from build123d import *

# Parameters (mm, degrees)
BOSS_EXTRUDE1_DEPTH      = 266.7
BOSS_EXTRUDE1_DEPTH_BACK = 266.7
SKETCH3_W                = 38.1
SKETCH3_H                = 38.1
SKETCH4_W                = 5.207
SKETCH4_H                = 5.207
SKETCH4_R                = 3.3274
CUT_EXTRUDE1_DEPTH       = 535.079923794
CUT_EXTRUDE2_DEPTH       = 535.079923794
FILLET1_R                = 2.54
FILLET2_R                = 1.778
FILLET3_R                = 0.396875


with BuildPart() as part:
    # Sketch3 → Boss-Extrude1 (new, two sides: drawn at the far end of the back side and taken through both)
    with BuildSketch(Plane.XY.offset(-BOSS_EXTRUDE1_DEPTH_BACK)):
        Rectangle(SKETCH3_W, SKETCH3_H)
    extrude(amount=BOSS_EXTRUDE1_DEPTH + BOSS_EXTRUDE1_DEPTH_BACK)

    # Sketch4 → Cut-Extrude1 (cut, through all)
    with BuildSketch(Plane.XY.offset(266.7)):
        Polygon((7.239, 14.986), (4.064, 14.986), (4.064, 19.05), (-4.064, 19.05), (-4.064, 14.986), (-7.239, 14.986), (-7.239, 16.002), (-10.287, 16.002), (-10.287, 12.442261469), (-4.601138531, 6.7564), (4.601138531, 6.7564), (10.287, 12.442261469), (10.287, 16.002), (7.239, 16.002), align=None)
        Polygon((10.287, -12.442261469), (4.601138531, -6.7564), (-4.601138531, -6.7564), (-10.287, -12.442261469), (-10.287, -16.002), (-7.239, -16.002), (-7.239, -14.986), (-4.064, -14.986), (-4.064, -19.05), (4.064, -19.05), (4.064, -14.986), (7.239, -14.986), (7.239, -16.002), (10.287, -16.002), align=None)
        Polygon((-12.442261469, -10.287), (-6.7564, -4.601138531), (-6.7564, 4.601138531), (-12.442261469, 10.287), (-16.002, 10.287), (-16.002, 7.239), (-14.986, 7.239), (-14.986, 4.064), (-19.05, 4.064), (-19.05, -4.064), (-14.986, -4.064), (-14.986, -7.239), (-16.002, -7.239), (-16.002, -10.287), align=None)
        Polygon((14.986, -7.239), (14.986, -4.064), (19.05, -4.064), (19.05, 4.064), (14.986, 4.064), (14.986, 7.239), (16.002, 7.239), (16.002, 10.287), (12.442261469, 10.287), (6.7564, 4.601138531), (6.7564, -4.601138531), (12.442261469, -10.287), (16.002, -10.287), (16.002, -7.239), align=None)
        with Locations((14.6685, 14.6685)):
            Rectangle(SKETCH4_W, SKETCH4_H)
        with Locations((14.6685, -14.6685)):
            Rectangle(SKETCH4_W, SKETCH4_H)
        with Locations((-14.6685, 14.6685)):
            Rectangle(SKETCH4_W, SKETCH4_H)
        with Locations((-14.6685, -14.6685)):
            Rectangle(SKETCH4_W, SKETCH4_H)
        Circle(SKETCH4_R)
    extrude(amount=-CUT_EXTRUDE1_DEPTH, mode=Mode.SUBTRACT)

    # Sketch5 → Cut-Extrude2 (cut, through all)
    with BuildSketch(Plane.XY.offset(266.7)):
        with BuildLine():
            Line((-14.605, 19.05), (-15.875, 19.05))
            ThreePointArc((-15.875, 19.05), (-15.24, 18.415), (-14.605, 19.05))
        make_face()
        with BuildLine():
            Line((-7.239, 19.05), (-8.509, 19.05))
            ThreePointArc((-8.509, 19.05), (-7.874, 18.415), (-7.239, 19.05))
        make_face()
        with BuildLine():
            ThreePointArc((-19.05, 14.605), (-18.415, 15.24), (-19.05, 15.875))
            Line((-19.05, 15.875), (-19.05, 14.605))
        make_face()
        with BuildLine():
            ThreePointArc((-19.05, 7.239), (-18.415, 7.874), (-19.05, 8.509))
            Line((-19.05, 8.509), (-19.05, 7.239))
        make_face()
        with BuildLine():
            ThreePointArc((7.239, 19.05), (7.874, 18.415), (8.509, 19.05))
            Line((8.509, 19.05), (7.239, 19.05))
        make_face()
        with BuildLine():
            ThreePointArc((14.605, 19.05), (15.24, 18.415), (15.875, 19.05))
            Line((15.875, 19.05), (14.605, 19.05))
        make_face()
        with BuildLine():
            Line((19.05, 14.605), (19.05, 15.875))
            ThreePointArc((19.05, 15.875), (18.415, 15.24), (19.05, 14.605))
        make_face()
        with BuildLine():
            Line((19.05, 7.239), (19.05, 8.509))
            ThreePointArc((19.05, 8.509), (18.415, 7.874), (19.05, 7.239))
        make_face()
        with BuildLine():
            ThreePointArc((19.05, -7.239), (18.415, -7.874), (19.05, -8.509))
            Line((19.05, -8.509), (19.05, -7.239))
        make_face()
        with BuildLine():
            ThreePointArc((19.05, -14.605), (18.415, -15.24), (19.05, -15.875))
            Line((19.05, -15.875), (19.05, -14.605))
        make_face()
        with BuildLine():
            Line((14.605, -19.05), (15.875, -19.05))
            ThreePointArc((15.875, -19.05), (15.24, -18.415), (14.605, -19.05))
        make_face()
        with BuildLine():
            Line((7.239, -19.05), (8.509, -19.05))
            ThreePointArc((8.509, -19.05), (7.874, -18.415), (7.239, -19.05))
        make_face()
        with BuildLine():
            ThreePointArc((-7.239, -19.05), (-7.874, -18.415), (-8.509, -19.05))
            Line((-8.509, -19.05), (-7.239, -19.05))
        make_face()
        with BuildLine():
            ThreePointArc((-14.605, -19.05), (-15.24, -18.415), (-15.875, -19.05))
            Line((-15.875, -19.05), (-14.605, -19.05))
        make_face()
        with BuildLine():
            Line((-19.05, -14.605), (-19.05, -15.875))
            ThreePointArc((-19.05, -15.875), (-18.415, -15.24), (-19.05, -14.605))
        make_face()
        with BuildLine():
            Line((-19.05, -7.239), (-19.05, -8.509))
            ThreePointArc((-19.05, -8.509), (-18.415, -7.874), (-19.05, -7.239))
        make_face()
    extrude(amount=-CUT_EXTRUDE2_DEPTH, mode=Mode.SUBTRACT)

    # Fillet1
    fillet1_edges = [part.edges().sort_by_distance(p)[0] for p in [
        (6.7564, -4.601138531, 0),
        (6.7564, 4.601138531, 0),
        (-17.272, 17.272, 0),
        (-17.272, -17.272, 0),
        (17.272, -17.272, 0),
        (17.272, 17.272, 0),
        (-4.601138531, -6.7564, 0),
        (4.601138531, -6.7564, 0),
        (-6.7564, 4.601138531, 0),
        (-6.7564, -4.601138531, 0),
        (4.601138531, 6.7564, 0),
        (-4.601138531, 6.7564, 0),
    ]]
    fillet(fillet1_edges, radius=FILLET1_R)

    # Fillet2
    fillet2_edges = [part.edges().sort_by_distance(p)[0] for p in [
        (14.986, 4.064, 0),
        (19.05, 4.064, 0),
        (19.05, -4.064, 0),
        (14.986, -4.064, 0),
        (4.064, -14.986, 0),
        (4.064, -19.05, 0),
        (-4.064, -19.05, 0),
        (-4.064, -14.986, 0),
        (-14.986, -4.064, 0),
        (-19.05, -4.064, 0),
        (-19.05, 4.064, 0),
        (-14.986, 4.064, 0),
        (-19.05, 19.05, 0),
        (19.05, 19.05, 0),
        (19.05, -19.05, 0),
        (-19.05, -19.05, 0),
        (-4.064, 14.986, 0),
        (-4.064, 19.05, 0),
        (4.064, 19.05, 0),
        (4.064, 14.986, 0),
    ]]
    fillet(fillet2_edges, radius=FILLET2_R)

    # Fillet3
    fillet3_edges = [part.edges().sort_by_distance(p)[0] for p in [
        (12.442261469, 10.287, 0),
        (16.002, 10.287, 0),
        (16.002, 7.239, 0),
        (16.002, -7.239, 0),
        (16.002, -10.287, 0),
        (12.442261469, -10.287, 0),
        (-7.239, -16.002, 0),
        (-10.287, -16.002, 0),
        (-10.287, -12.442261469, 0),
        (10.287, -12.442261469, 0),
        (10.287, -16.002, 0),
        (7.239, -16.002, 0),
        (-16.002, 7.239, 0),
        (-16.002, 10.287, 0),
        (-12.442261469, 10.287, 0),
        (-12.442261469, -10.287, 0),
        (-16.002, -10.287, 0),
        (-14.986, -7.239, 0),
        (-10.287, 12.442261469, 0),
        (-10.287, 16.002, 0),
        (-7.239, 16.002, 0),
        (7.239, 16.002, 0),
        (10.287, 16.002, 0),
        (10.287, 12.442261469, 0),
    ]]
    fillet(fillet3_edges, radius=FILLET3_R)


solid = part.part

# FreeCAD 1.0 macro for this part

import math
import FreeCAD as App
import Part
import Sketcher
Q = App.Units.Quantity


def edges_at(feature, points):
    """Names of the edges that pass closest to the given points."""
    edges = feature.Shape.Edges
    near = lambda p: min(range(len(edges)), key=lambda i: edges[i].distToShape(Part.Vertex(*p))[0])
    return sorted({f"Edge{near(p) + 1}" for p in points})

doc = App.newDocument("Part")
body = doc.addObject("PartDesign::Body", "Body")

# Sketch on XY plane
sketch1 = doc.addObject("Sketcher::SketchObject", "Sketch")
body.addObject(sketch1)
sketch1.AttachmentSupport = (doc.XY_Plane, [""])
sketch1.MapMode = "FlatFace"
sketch1.addGeometry(Part.LineSegment(App.Vector(-19, 19, 0), App.Vector(-19, -19, 0)), False)
sketch1.addGeometry(Part.LineSegment(App.Vector(-19, -19, 0), App.Vector(19, -19, 0)), False)
sketch1.addGeometry(Part.LineSegment(App.Vector(19, -19, 0), App.Vector(19, 19, 0)), False)
sketch1.addGeometry(Part.LineSegment(App.Vector(19, 19, 0), App.Vector(-19, 19, 0)), False)
sketch1.addConstraint(Sketcher.Constraint("Coincident", 0, 2, 1, 1))
sketch1.addConstraint(Sketcher.Constraint("Coincident", 1, 2, 2, 1))
sketch1.addConstraint(Sketcher.Constraint("Coincident", 2, 2, 3, 1))
sketch1.addConstraint(Sketcher.Constraint("Coincident", 3, 2, 0, 1))
sketch1.addConstraint(Sketcher.Constraint("Vertical", 0))
sketch1.addConstraint(Sketcher.Constraint("Horizontal", 1))
sketch1.addConstraint(Sketcher.Constraint("Vertical", 2))
sketch1.addConstraint(Sketcher.Constraint("Horizontal", 3))
sketch1.addConstraint(Sketcher.Constraint("Symmetric", 0, 2, 2, 2, -1, 1))
sketch1.addConstraint(Sketcher.Constraint("Equal", 3, 0))
sketch1.addConstraint(Sketcher.Constraint("DistanceX", 1, 1, 1, 2, Q("1.5 in")))
pad1 = doc.addObject("PartDesign::Pad", "Pad")
body.addObject(pad1)
pad1.Profile = sketch1
pad1.Type = "TwoLengths"
pad1.Length = Q("10.5 in")
pad1.Length2 = Q("10.5 in")

# Sketch on XY plane
sketch2 = doc.addObject("Sketcher::SketchObject", "Sketch001")
body.addObject(sketch2)
sketch2.AttachmentSupport = (doc.XY_Plane, [""])
sketch2.MapMode = "FlatFace"
sketch2.AttachmentOffset = App.Placement(App.Vector(0, 0, 10.5 * 25.4), App.Rotation())
sketch2.addGeometry(Part.LineSegment(App.Vector(7.2, 15, 0), App.Vector(4.1, 15, 0)), False)
sketch2.addGeometry(Part.LineSegment(App.Vector(4.1, 15, 0), App.Vector(4.1, 19.1, 0)), False)
sketch2.addGeometry(Part.LineSegment(App.Vector(4.1, 19.1, 0), App.Vector(-4.1, 19.1, 0)), False)
sketch2.addGeometry(Part.LineSegment(App.Vector(-4.1, 19.1, 0), App.Vector(-4.1, 15, 0)), False)
sketch2.addGeometry(Part.LineSegment(App.Vector(-4.1, 15, 0), App.Vector(-7.2, 15, 0)), False)
sketch2.addGeometry(Part.LineSegment(App.Vector(-7.2, 15, 0), App.Vector(-7.2, 16, 0)), False)
sketch2.addGeometry(Part.LineSegment(App.Vector(-7.2, 16, 0), App.Vector(-10.3, 16, 0)), False)
sketch2.addGeometry(Part.LineSegment(App.Vector(-10.3, 16, 0), App.Vector(-10.3, 12.4, 0)), False)
sketch2.addGeometry(Part.LineSegment(App.Vector(-10.3, 12.4, 0), App.Vector(-4.6, 6.8, 0)), False)
sketch2.addGeometry(Part.LineSegment(App.Vector(-4.6, 6.8, 0), App.Vector(4.6, 6.8, 0)), False)
sketch2.addGeometry(Part.LineSegment(App.Vector(4.6, 6.8, 0), App.Vector(10.3, 12.4, 0)), False)
sketch2.addGeometry(Part.LineSegment(App.Vector(10.3, 12.4, 0), App.Vector(10.3, 16, 0)), False)
sketch2.addGeometry(Part.LineSegment(App.Vector(10.3, 16, 0), App.Vector(7.2, 16, 0)), False)
sketch2.addGeometry(Part.LineSegment(App.Vector(7.2, 16, 0), App.Vector(7.2, 15, 0)), False)
sketch2.addGeometry(Part.LineSegment(App.Vector(10.3, -12.4, 0), App.Vector(4.6, -6.8, 0)), False)
sketch2.addGeometry(Part.LineSegment(App.Vector(4.6, -6.8, 0), App.Vector(-4.6, -6.8, 0)), False)
sketch2.addGeometry(Part.LineSegment(App.Vector(-4.6, -6.8, 0), App.Vector(-10.3, -12.4, 0)), False)
sketch2.addGeometry(Part.LineSegment(App.Vector(-10.3, -12.4, 0), App.Vector(-10.3, -16, 0)), False)
sketch2.addGeometry(Part.LineSegment(App.Vector(-10.3, -16, 0), App.Vector(-7.2, -16, 0)), False)
sketch2.addGeometry(Part.LineSegment(App.Vector(-7.2, -16, 0), App.Vector(-7.2, -15, 0)), False)
sketch2.addGeometry(Part.LineSegment(App.Vector(-7.2, -15, 0), App.Vector(-4.1, -15, 0)), False)
sketch2.addGeometry(Part.LineSegment(App.Vector(-4.1, -15, 0), App.Vector(-4.1, -19.1, 0)), False)
sketch2.addGeometry(Part.LineSegment(App.Vector(-4.1, -19.1, 0), App.Vector(4.1, -19.1, 0)), False)
sketch2.addGeometry(Part.LineSegment(App.Vector(4.1, -19.1, 0), App.Vector(4.1, -15, 0)), False)
sketch2.addGeometry(Part.LineSegment(App.Vector(4.1, -15, 0), App.Vector(7.2, -15, 0)), False)
sketch2.addGeometry(Part.LineSegment(App.Vector(7.2, -15, 0), App.Vector(7.2, -16, 0)), False)
sketch2.addGeometry(Part.LineSegment(App.Vector(7.2, -16, 0), App.Vector(10.3, -16, 0)), False)
sketch2.addGeometry(Part.LineSegment(App.Vector(10.3, -16, 0), App.Vector(10.3, -12.4, 0)), False)
sketch2.addGeometry(Part.LineSegment(App.Vector(-12.4, -10.3, 0), App.Vector(-6.8, -4.6, 0)), False)
sketch2.addGeometry(Part.LineSegment(App.Vector(-6.8, -4.6, 0), App.Vector(-6.8, 4.6, 0)), False)
sketch2.addGeometry(Part.LineSegment(App.Vector(-6.8, 4.6, 0), App.Vector(-12.4, 10.3, 0)), False)
sketch2.addGeometry(Part.LineSegment(App.Vector(-12.4, 10.3, 0), App.Vector(-16, 10.3, 0)), False)
sketch2.addGeometry(Part.LineSegment(App.Vector(-16, 10.3, 0), App.Vector(-16, 7.2, 0)), False)
sketch2.addGeometry(Part.LineSegment(App.Vector(-16, 7.2, 0), App.Vector(-15, 7.2, 0)), False)
sketch2.addGeometry(Part.LineSegment(App.Vector(-15, 7.2, 0), App.Vector(-15, 4.1, 0)), False)
sketch2.addGeometry(Part.LineSegment(App.Vector(-15, 4.1, 0), App.Vector(-19.1, 4.1, 0)), False)
sketch2.addGeometry(Part.LineSegment(App.Vector(-19.1, 4.1, 0), App.Vector(-19.1, -4.1, 0)), False)
sketch2.addGeometry(Part.LineSegment(App.Vector(-19.1, -4.1, 0), App.Vector(-15, -4.1, 0)), False)
sketch2.addGeometry(Part.LineSegment(App.Vector(-15, -4.1, 0), App.Vector(-15, -7.2, 0)), False)
sketch2.addGeometry(Part.LineSegment(App.Vector(-15, -7.2, 0), App.Vector(-16, -7.2, 0)), False)
sketch2.addGeometry(Part.LineSegment(App.Vector(-16, -7.2, 0), App.Vector(-16, -10.3, 0)), False)
sketch2.addGeometry(Part.LineSegment(App.Vector(-16, -10.3, 0), App.Vector(-12.4, -10.3, 0)), False)
sketch2.addGeometry(Part.LineSegment(App.Vector(15, -7.2, 0), App.Vector(15, -4.1, 0)), False)
sketch2.addGeometry(Part.LineSegment(App.Vector(15, -4.1, 0), App.Vector(19.1, -4.1, 0)), False)
sketch2.addGeometry(Part.LineSegment(App.Vector(19.1, -4.1, 0), App.Vector(19.1, 4.1, 0)), False)
sketch2.addGeometry(Part.LineSegment(App.Vector(19.1, 4.1, 0), App.Vector(15, 4.1, 0)), False)
sketch2.addGeometry(Part.LineSegment(App.Vector(15, 4.1, 0), App.Vector(15, 7.2, 0)), False)
sketch2.addGeometry(Part.LineSegment(App.Vector(15, 7.2, 0), App.Vector(16, 7.2, 0)), False)
sketch2.addGeometry(Part.LineSegment(App.Vector(16, 7.2, 0), App.Vector(16, 10.3, 0)), False)
sketch2.addGeometry(Part.LineSegment(App.Vector(16, 10.3, 0), App.Vector(12.4, 10.3, 0)), False)
sketch2.addGeometry(Part.LineSegment(App.Vector(12.4, 10.3, 0), App.Vector(6.8, 4.6, 0)), False)
sketch2.addGeometry(Part.LineSegment(App.Vector(6.8, 4.6, 0), App.Vector(6.8, -4.6, 0)), False)
sketch2.addGeometry(Part.LineSegment(App.Vector(6.8, -4.6, 0), App.Vector(12.4, -10.3, 0)), False)
sketch2.addGeometry(Part.LineSegment(App.Vector(12.4, -10.3, 0), App.Vector(16, -10.3, 0)), False)
sketch2.addGeometry(Part.LineSegment(App.Vector(16, -10.3, 0), App.Vector(16, -7.2, 0)), False)
sketch2.addGeometry(Part.LineSegment(App.Vector(16, -7.2, 0), App.Vector(15, -7.2, 0)), False)
sketch2.addGeometry(Part.LineSegment(App.Vector(12.1, 17.3, 0), App.Vector(12.1, 12.1, 0)), False)
sketch2.addGeometry(Part.LineSegment(App.Vector(12.1, 12.1, 0), App.Vector(17.3, 12.1, 0)), False)
sketch2.addGeometry(Part.LineSegment(App.Vector(17.3, 12.1, 0), App.Vector(17.3, 17.3, 0)), False)
sketch2.addGeometry(Part.LineSegment(App.Vector(17.3, 17.3, 0), App.Vector(12.1, 17.3, 0)), False)
sketch2.addGeometry(Part.LineSegment(App.Vector(12.1, -12.1, 0), App.Vector(12.1, -17.3, 0)), False)
sketch2.addGeometry(Part.LineSegment(App.Vector(12.1, -17.3, 0), App.Vector(17.3, -17.3, 0)), False)
sketch2.addGeometry(Part.LineSegment(App.Vector(17.3, -17.3, 0), App.Vector(17.3, -12.1, 0)), False)
sketch2.addGeometry(Part.LineSegment(App.Vector(17.3, -12.1, 0), App.Vector(12.1, -12.1, 0)), False)
sketch2.addGeometry(Part.LineSegment(App.Vector(-17.3, 17.3, 0), App.Vector(-17.3, 12.1, 0)), False)
sketch2.addGeometry(Part.LineSegment(App.Vector(-17.3, 12.1, 0), App.Vector(-12.1, 12.1, 0)), False)
sketch2.addGeometry(Part.LineSegment(App.Vector(-12.1, 12.1, 0), App.Vector(-12.1, 17.3, 0)), False)
sketch2.addGeometry(Part.LineSegment(App.Vector(-12.1, 17.3, 0), App.Vector(-17.3, 17.3, 0)), False)
sketch2.addGeometry(Part.LineSegment(App.Vector(-17.3, -12.1, 0), App.Vector(-17.3, -17.3, 0)), False)
sketch2.addGeometry(Part.LineSegment(App.Vector(-17.3, -17.3, 0), App.Vector(-12.1, -17.3, 0)), False)
sketch2.addGeometry(Part.LineSegment(App.Vector(-12.1, -17.3, 0), App.Vector(-12.1, -12.1, 0)), False)
sketch2.addGeometry(Part.LineSegment(App.Vector(-12.1, -12.1, 0), App.Vector(-17.3, -12.1, 0)), False)
sketch2.addGeometry(Part.Circle(App.Vector(0, 0, 0), App.Vector(0, 0, 1), 3.3), False)
sketch2.addConstraint(Sketcher.Constraint("Coincident", 0, 2, 1, 1))
sketch2.addConstraint(Sketcher.Constraint("Coincident", 1, 2, 2, 1))
sketch2.addConstraint(Sketcher.Constraint("Coincident", 2, 2, 3, 1))
sketch2.addConstraint(Sketcher.Constraint("Coincident", 3, 2, 4, 1))
sketch2.addConstraint(Sketcher.Constraint("Coincident", 4, 2, 5, 1))
sketch2.addConstraint(Sketcher.Constraint("Coincident", 5, 2, 6, 1))
sketch2.addConstraint(Sketcher.Constraint("Coincident", 6, 2, 7, 1))
sketch2.addConstraint(Sketcher.Constraint("Coincident", 7, 2, 8, 1))
sketch2.addConstraint(Sketcher.Constraint("Coincident", 8, 2, 9, 1))
sketch2.addConstraint(Sketcher.Constraint("Coincident", 9, 2, 10, 1))
sketch2.addConstraint(Sketcher.Constraint("Coincident", 10, 2, 11, 1))
sketch2.addConstraint(Sketcher.Constraint("Coincident", 11, 2, 12, 1))
sketch2.addConstraint(Sketcher.Constraint("Coincident", 12, 2, 13, 1))
sketch2.addConstraint(Sketcher.Constraint("Coincident", 13, 2, 0, 1))
sketch2.addConstraint(Sketcher.Constraint("Coincident", 14, 2, 15, 1))
sketch2.addConstraint(Sketcher.Constraint("Coincident", 15, 2, 16, 1))
sketch2.addConstraint(Sketcher.Constraint("Coincident", 16, 2, 17, 1))
sketch2.addConstraint(Sketcher.Constraint("Coincident", 17, 2, 18, 1))
sketch2.addConstraint(Sketcher.Constraint("Coincident", 18, 2, 19, 1))
sketch2.addConstraint(Sketcher.Constraint("Coincident", 19, 2, 20, 1))
sketch2.addConstraint(Sketcher.Constraint("Coincident", 20, 2, 21, 1))
sketch2.addConstraint(Sketcher.Constraint("Coincident", 21, 2, 22, 1))
sketch2.addConstraint(Sketcher.Constraint("Coincident", 22, 2, 23, 1))
sketch2.addConstraint(Sketcher.Constraint("Coincident", 23, 2, 24, 1))
sketch2.addConstraint(Sketcher.Constraint("Coincident", 24, 2, 25, 1))
sketch2.addConstraint(Sketcher.Constraint("Coincident", 25, 2, 26, 1))
sketch2.addConstraint(Sketcher.Constraint("Coincident", 26, 2, 27, 1))
sketch2.addConstraint(Sketcher.Constraint("Coincident", 27, 2, 14, 1))
sketch2.addConstraint(Sketcher.Constraint("Coincident", 28, 2, 29, 1))
sketch2.addConstraint(Sketcher.Constraint("Coincident", 29, 2, 30, 1))
sketch2.addConstraint(Sketcher.Constraint("Coincident", 30, 2, 31, 1))
sketch2.addConstraint(Sketcher.Constraint("Coincident", 31, 2, 32, 1))
sketch2.addConstraint(Sketcher.Constraint("Coincident", 32, 2, 33, 1))
sketch2.addConstraint(Sketcher.Constraint("Coincident", 33, 2, 34, 1))
sketch2.addConstraint(Sketcher.Constraint("Coincident", 34, 2, 35, 1))
sketch2.addConstraint(Sketcher.Constraint("Coincident", 35, 2, 36, 1))
sketch2.addConstraint(Sketcher.Constraint("Coincident", 36, 2, 37, 1))
sketch2.addConstraint(Sketcher.Constraint("Coincident", 37, 2, 38, 1))
sketch2.addConstraint(Sketcher.Constraint("Coincident", 38, 2, 39, 1))
sketch2.addConstraint(Sketcher.Constraint("Coincident", 39, 2, 40, 1))
sketch2.addConstraint(Sketcher.Constraint("Coincident", 40, 2, 41, 1))
sketch2.addConstraint(Sketcher.Constraint("Coincident", 41, 2, 28, 1))
sketch2.addConstraint(Sketcher.Constraint("Coincident", 42, 2, 43, 1))
sketch2.addConstraint(Sketcher.Constraint("Coincident", 43, 2, 44, 1))
sketch2.addConstraint(Sketcher.Constraint("Coincident", 44, 2, 45, 1))
sketch2.addConstraint(Sketcher.Constraint("Coincident", 45, 2, 46, 1))
sketch2.addConstraint(Sketcher.Constraint("Coincident", 46, 2, 47, 1))
sketch2.addConstraint(Sketcher.Constraint("Coincident", 47, 2, 48, 1))
sketch2.addConstraint(Sketcher.Constraint("Coincident", 48, 2, 49, 1))
sketch2.addConstraint(Sketcher.Constraint("Coincident", 49, 2, 50, 1))
sketch2.addConstraint(Sketcher.Constraint("Coincident", 50, 2, 51, 1))
sketch2.addConstraint(Sketcher.Constraint("Coincident", 51, 2, 52, 1))
sketch2.addConstraint(Sketcher.Constraint("Coincident", 52, 2, 53, 1))
sketch2.addConstraint(Sketcher.Constraint("Coincident", 53, 2, 54, 1))
sketch2.addConstraint(Sketcher.Constraint("Coincident", 54, 2, 55, 1))
sketch2.addConstraint(Sketcher.Constraint("Coincident", 55, 2, 42, 1))
sketch2.addConstraint(Sketcher.Constraint("Coincident", 56, 2, 57, 1))
sketch2.addConstraint(Sketcher.Constraint("Coincident", 57, 2, 58, 1))
sketch2.addConstraint(Sketcher.Constraint("Coincident", 58, 2, 59, 1))
sketch2.addConstraint(Sketcher.Constraint("Coincident", 59, 2, 56, 1))
sketch2.addConstraint(Sketcher.Constraint("Coincident", 60, 2, 61, 1))
sketch2.addConstraint(Sketcher.Constraint("Coincident", 61, 2, 62, 1))
sketch2.addConstraint(Sketcher.Constraint("Coincident", 62, 2, 63, 1))
sketch2.addConstraint(Sketcher.Constraint("Coincident", 63, 2, 60, 1))
sketch2.addConstraint(Sketcher.Constraint("Coincident", 64, 2, 65, 1))
sketch2.addConstraint(Sketcher.Constraint("Coincident", 65, 2, 66, 1))
sketch2.addConstraint(Sketcher.Constraint("Coincident", 66, 2, 67, 1))
sketch2.addConstraint(Sketcher.Constraint("Coincident", 67, 2, 64, 1))
sketch2.addConstraint(Sketcher.Constraint("Coincident", 68, 2, 69, 1))
sketch2.addConstraint(Sketcher.Constraint("Coincident", 69, 2, 70, 1))
sketch2.addConstraint(Sketcher.Constraint("Coincident", 70, 2, 71, 1))
sketch2.addConstraint(Sketcher.Constraint("Coincident", 71, 2, 68, 1))
sketch2.addConstraint(Sketcher.Constraint("Horizontal", 0))
sketch2.addConstraint(Sketcher.Constraint("Vertical", 1))
sketch2.addConstraint(Sketcher.Constraint("Horizontal", 2))
sketch2.addConstraint(Sketcher.Constraint("Vertical", 3))
sketch2.addConstraint(Sketcher.Constraint("Horizontal", 4))
sketch2.addConstraint(Sketcher.Constraint("Vertical", 5))
sketch2.addConstraint(Sketcher.Constraint("Horizontal", 6))
sketch2.addConstraint(Sketcher.Constraint("Vertical", 7))
sketch2.addConstraint(Sketcher.Constraint("Horizontal", 9))
sketch2.addConstraint(Sketcher.Constraint("Vertical", 11))
sketch2.addConstraint(Sketcher.Constraint("Horizontal", 12))
sketch2.addConstraint(Sketcher.Constraint("Vertical", 13))
sketch2.addConstraint(Sketcher.Constraint("Horizontal", 15))
sketch2.addConstraint(Sketcher.Constraint("Vertical", 17))
sketch2.addConstraint(Sketcher.Constraint("Horizontal", 18))
sketch2.addConstraint(Sketcher.Constraint("Vertical", 19))
sketch2.addConstraint(Sketcher.Constraint("Horizontal", 20))
sketch2.addConstraint(Sketcher.Constraint("Vertical", 21))
sketch2.addConstraint(Sketcher.Constraint("Horizontal", 22))
sketch2.addConstraint(Sketcher.Constraint("Vertical", 23))
sketch2.addConstraint(Sketcher.Constraint("Horizontal", 24))
sketch2.addConstraint(Sketcher.Constraint("Vertical", 25))
sketch2.addConstraint(Sketcher.Constraint("Horizontal", 26))
sketch2.addConstraint(Sketcher.Constraint("Vertical", 27))
sketch2.addConstraint(Sketcher.Constraint("Vertical", 29))
sketch2.addConstraint(Sketcher.Constraint("Horizontal", 31))
sketch2.addConstraint(Sketcher.Constraint("Vertical", 32))
sketch2.addConstraint(Sketcher.Constraint("Horizontal", 33))
sketch2.addConstraint(Sketcher.Constraint("Vertical", 34))
sketch2.addConstraint(Sketcher.Constraint("Horizontal", 35))
sketch2.addConstraint(Sketcher.Constraint("Vertical", 36))
sketch2.addConstraint(Sketcher.Constraint("Horizontal", 37))
sketch2.addConstraint(Sketcher.Constraint("Vertical", 38))
sketch2.addConstraint(Sketcher.Constraint("Horizontal", 39))
sketch2.addConstraint(Sketcher.Constraint("Vertical", 40))
sketch2.addConstraint(Sketcher.Constraint("Horizontal", 41))
sketch2.addConstraint(Sketcher.Constraint("Vertical", 42))
sketch2.addConstraint(Sketcher.Constraint("Horizontal", 43))
sketch2.addConstraint(Sketcher.Constraint("Vertical", 44))
sketch2.addConstraint(Sketcher.Constraint("Horizontal", 45))
sketch2.addConstraint(Sketcher.Constraint("Vertical", 46))
sketch2.addConstraint(Sketcher.Constraint("Horizontal", 47))
sketch2.addConstraint(Sketcher.Constraint("Vertical", 48))
sketch2.addConstraint(Sketcher.Constraint("Horizontal", 49))
sketch2.addConstraint(Sketcher.Constraint("Vertical", 51))
sketch2.addConstraint(Sketcher.Constraint("Horizontal", 53))
sketch2.addConstraint(Sketcher.Constraint("Vertical", 54))
sketch2.addConstraint(Sketcher.Constraint("Horizontal", 55))
sketch2.addConstraint(Sketcher.Constraint("Vertical", 56))
sketch2.addConstraint(Sketcher.Constraint("Horizontal", 57))
sketch2.addConstraint(Sketcher.Constraint("Vertical", 58))
sketch2.addConstraint(Sketcher.Constraint("Horizontal", 59))
sketch2.addConstraint(Sketcher.Constraint("Vertical", 60))
sketch2.addConstraint(Sketcher.Constraint("Horizontal", 61))
sketch2.addConstraint(Sketcher.Constraint("Vertical", 62))
sketch2.addConstraint(Sketcher.Constraint("Horizontal", 63))
sketch2.addConstraint(Sketcher.Constraint("Vertical", 64))
sketch2.addConstraint(Sketcher.Constraint("Horizontal", 65))
sketch2.addConstraint(Sketcher.Constraint("Vertical", 66))
sketch2.addConstraint(Sketcher.Constraint("Horizontal", 67))
sketch2.addConstraint(Sketcher.Constraint("Vertical", 68))
sketch2.addConstraint(Sketcher.Constraint("Horizontal", 69))
sketch2.addConstraint(Sketcher.Constraint("Vertical", 70))
sketch2.addConstraint(Sketcher.Constraint("Horizontal", 71))
sketch2.addConstraint(Sketcher.Constraint("Coincident", 72, 3, -1, 1))
sketch2.addConstraint(Sketcher.Constraint("Symmetric", 8, 2, 14, 2, -1, 1))
sketch2.addConstraint(Sketcher.Constraint("Symmetric", 10, 2, 16, 2, -1, 1))
sketch2.addConstraint(Sketcher.Constraint("Symmetric", 12, 2, 18, 2, -1, 1))
sketch2.addConstraint(Sketcher.Constraint("Symmetric", 0, 2, 20, 2, -1, 1))
sketch2.addConstraint(Sketcher.Constraint("Symmetric", 2, 2, 22, 2, -1, 1))
sketch2.addConstraint(Sketcher.Constraint("Symmetric", 4, 2, 24, 2, -1, 1))
sketch2.addConstraint(Sketcher.Constraint("Symmetric", 6, 2, 26, 2, -1, 1))
sketch2.addConstraint(Sketcher.Constraint("Symmetric", 34, 2, 42, 2, -1, 1))
sketch2.addConstraint(Sketcher.Constraint("Symmetric", 36, 2, 44, 2, -1, 1))
sketch2.addConstraint(Sketcher.Constraint("Symmetric", 38, 2, 46, 2, -1, 1))
sketch2.addConstraint(Sketcher.Constraint("Symmetric", 40, 2, 48, 2, -1, 1))
sketch2.addConstraint(Sketcher.Constraint("Symmetric", 28, 2, 50, 2, -1, 1))
sketch2.addConstraint(Sketcher.Constraint("Symmetric", 30, 2, 52, 2, -1, 1))
sketch2.addConstraint(Sketcher.Constraint("Symmetric", 32, 2, 54, 2, -1, 1))
sketch2.addConstraint(Sketcher.Constraint("Symmetric", 62, 2, 64, 2, -1, 1))
sketch2.addConstraint(Sketcher.Constraint("Symmetric", 60, 2, 66, 2, -1, 1))
sketch2.addConstraint(Sketcher.Constraint("Symmetric", 58, 2, 68, 2, -1, 1))
sketch2.addConstraint(Sketcher.Constraint("Symmetric", 56, 2, 70, 2, -1, 1))
sketch2.addConstraint(Sketcher.Constraint("Symmetric", 0, 2, 3, 2, -2))
sketch2.addConstraint(Sketcher.Constraint("Symmetric", 7, 2, 10, 2, -2))
sketch2.addConstraint(Sketcher.Constraint("Symmetric", 5, 2, 12, 2, -2))
sketch2.addConstraint(Sketcher.Constraint("Symmetric", 37, 2, 42, 2, -2))
sketch2.addConstraint(Sketcher.Constraint("Symmetric", 32, 2, 47, 2, -2))
sketch2.addConstraint(Sketcher.Constraint("Symmetric", 30, 2, 49, 2, -2))
sketch2.addConstraint(Sketcher.Constraint("Symmetric", 57, 2, 64, 2, -2))
sketch2.addConstraint(Sketcher.Constraint("Symmetric", 59, 2, 66, 2, -2))
sketch2.addConstraint(Sketcher.Constraint("Perpendicular", 8, 10))
sketch2.addConstraint(Sketcher.Constraint("Perpendicular", 10, 14))
sketch2.addConstraint(Sketcher.Constraint("Perpendicular", 14, 16))
sketch2.addConstraint(Sketcher.Constraint("Parallel", 16, 28))
sketch2.addConstraint(Sketcher.Constraint("Perpendicular", 28, 30))
sketch2.addConstraint(Sketcher.Constraint("Perpendicular", 30, 50))
sketch2.addConstraint(Sketcher.Constraint("Perpendicular", 50, 52))
sketch2.addConstraint(Sketcher.Constraint("Horizontal", 29, 2, 50, 2))
sketch2.addConstraint(Sketcher.Constraint("Equal", 45, 1))
sketch2.addConstraint(Sketcher.Constraint("Equal", 55, 5))
sketch2.addConstraint(Sketcher.Constraint("Equal", 53, 7))
sketch2.addConstraint(Sketcher.Constraint("Equal", 15, 29))
sketch2.addConstraint(Sketcher.Constraint("Equal", 26, 32))
sketch2.addConstraint(Sketcher.Constraint("Equal", 24, 34))
sketch2.addConstraint(Sketcher.Constraint("Equal", 22, 36))
sketch2.addConstraint(Sketcher.Constraint("Equal", 71, 56))
sketch2.addConstraint(Sketcher.Constraint("Diameter", 72, Q("0.262 in")))
sketch2.addConstraint(Sketcher.Constraint("DistanceX", 2, 2, 2, 1, Q("0.32 in")))
sketch2.addConstraint(Sketcher.Constraint("DistanceX", 6, 2, 6, 1, Q("0.12 in")))
sketch2.addConstraint(Sketcher.Constraint("DistanceX", 33, 1, 33, 2, Q("0.04 in")))
sketch2.addConstraint(Sketcher.Constraint("DistanceX", 35, 2, 35, 1, Q("0.16 in")))
sketch2.addConstraint(Sketcher.Constraint("DistanceX", 0, 2, 0, 1, Q("0.125 in")))
sketch2.addConstraint(Sketcher.Constraint("DistanceX", 57, 1, 57, 2, Q("0.205 in")))
sketch2.addConstraint(Sketcher.Constraint("DistanceY", -1, 1, 0, 2, Q("0.59 in")))
sketch2.addConstraint(Sketcher.Constraint("DistanceX", 31, 2, -1, 1, Q("0.63 in")))
sketch2.addConstraint(Sketcher.Constraint("DistanceX", -1, 1, 57, 2, Q("0.68 in")))
sketch2.addConstraint(Sketcher.Constraint("DistanceY", -1, 1, 58, 2, Q("0.68 in")))
sketch2.addConstraint(Sketcher.Constraint("DistanceY", -1, 1, 8, 2, Q("0.266 in")))
sketch2.addConstraint(Sketcher.Constraint("DistanceX", 31, 2, 31, 1, Q("3.559739 mm")))
pocket1 = doc.addObject("PartDesign::Pocket", "Pocket")
body.addObject(pocket1)
pocket1.Profile = sketch2
pocket1.Type = "ThroughAll"

# Sketch on XY plane
sketch3 = doc.addObject("Sketcher::SketchObject", "Sketch002")
body.addObject(sketch3)
sketch3.AttachmentSupport = (doc.XY_Plane, [""])
sketch3.MapMode = "FlatFace"
sketch3.AttachmentOffset = App.Placement(App.Vector(0, 0, 10.5 * 25.4), App.Rotation())
sketch3.addGeometry(Part.LineSegment(App.Vector(-14.6, 19.1, 0), App.Vector(-15.9, 19.1, 0)), False)
sketch3.addGeometry(Part.ArcOfCircle(Part.Circle(App.Vector(-15.2, 19.1, 0), App.Vector(0, 0, 1), 0.6), math.radians(180), math.radians(360)), False)
sketch3.addGeometry(Part.LineSegment(App.Vector(-7.2, 19.1, 0), App.Vector(-8.5, 19.1, 0)), False)
sketch3.addGeometry(Part.ArcOfCircle(Part.Circle(App.Vector(-7.9, 19.1, 0), App.Vector(0, 0, 1), 0.6), math.radians(180), math.radians(360)), False)
sketch3.addGeometry(Part.ArcOfCircle(Part.Circle(App.Vector(-19.1, 15.2, 0), App.Vector(0, 0, 1), 0.6), math.radians(-90), math.radians(90)), False)
sketch3.addGeometry(Part.LineSegment(App.Vector(-19.1, 15.9, 0), App.Vector(-19.1, 14.6, 0)), False)
sketch3.addGeometry(Part.ArcOfCircle(Part.Circle(App.Vector(-19.1, 7.9, 0), App.Vector(0, 0, 1), 0.6), math.radians(-90), math.radians(90)), False)
sketch3.addGeometry(Part.LineSegment(App.Vector(-19.1, 8.5, 0), App.Vector(-19.1, 7.2, 0)), False)
sketch3.addGeometry(Part.ArcOfCircle(Part.Circle(App.Vector(7.9, 19.1, 0), App.Vector(0, 0, 1), 0.6), math.radians(180), math.radians(360)), False)
sketch3.addGeometry(Part.LineSegment(App.Vector(8.5, 19.1, 0), App.Vector(7.2, 19.1, 0)), False)
sketch3.addGeometry(Part.ArcOfCircle(Part.Circle(App.Vector(15.2, 19.1, 0), App.Vector(0, 0, 1), 0.6), math.radians(180), math.radians(360)), False)
sketch3.addGeometry(Part.LineSegment(App.Vector(15.9, 19.1, 0), App.Vector(14.6, 19.1, 0)), False)
sketch3.addGeometry(Part.LineSegment(App.Vector(19.1, 14.6, 0), App.Vector(19.1, 15.9, 0)), False)
sketch3.addGeometry(Part.ArcOfCircle(Part.Circle(App.Vector(19.1, 15.2, 0), App.Vector(0, 0, 1), 0.6), math.radians(90), math.radians(270)), False)
sketch3.addGeometry(Part.LineSegment(App.Vector(19.1, 7.2, 0), App.Vector(19.1, 8.5, 0)), False)
sketch3.addGeometry(Part.ArcOfCircle(Part.Circle(App.Vector(19.1, 7.9, 0), App.Vector(0, 0, 1), 0.6), math.radians(90), math.radians(270)), False)
sketch3.addGeometry(Part.ArcOfCircle(Part.Circle(App.Vector(19.1, -7.9, 0), App.Vector(0, 0, 1), 0.6), math.radians(90), math.radians(270)), False)
sketch3.addGeometry(Part.LineSegment(App.Vector(19.1, -8.5, 0), App.Vector(19.1, -7.2, 0)), False)
sketch3.addGeometry(Part.ArcOfCircle(Part.Circle(App.Vector(19.1, -15.2, 0), App.Vector(0, 0, 1), 0.6), math.radians(90), math.radians(270)), False)
sketch3.addGeometry(Part.LineSegment(App.Vector(19.1, -15.9, 0), App.Vector(19.1, -14.6, 0)), False)
sketch3.addGeometry(Part.LineSegment(App.Vector(14.6, -19.1, 0), App.Vector(15.9, -19.1, 0)), False)
sketch3.addGeometry(Part.ArcOfCircle(Part.Circle(App.Vector(15.2, -19.1, 0), App.Vector(0, 0, 1), 0.6), math.radians(0), math.radians(180)), False)
sketch3.addGeometry(Part.LineSegment(App.Vector(7.2, -19.1, 0), App.Vector(8.5, -19.1, 0)), False)
sketch3.addGeometry(Part.ArcOfCircle(Part.Circle(App.Vector(7.9, -19.1, 0), App.Vector(0, 0, 1), 0.6), math.radians(0), math.radians(180)), False)
sketch3.addGeometry(Part.ArcOfCircle(Part.Circle(App.Vector(-7.9, -19.1, 0), App.Vector(0, 0, 1), 0.6), math.radians(0), math.radians(180)), False)
sketch3.addGeometry(Part.LineSegment(App.Vector(-8.5, -19.1, 0), App.Vector(-7.2, -19.1, 0)), False)
sketch3.addGeometry(Part.ArcOfCircle(Part.Circle(App.Vector(-15.2, -19.1, 0), App.Vector(0, 0, 1), 0.6), math.radians(0), math.radians(180)), False)
sketch3.addGeometry(Part.LineSegment(App.Vector(-15.9, -19.1, 0), App.Vector(-14.6, -19.1, 0)), False)
sketch3.addGeometry(Part.LineSegment(App.Vector(-19.1, -14.6, 0), App.Vector(-19.1, -15.9, 0)), False)
sketch3.addGeometry(Part.ArcOfCircle(Part.Circle(App.Vector(-19.1, -15.2, 0), App.Vector(0, 0, 1), 0.6), math.radians(-90), math.radians(90)), False)
sketch3.addGeometry(Part.LineSegment(App.Vector(-19.1, -7.2, 0), App.Vector(-19.1, -8.5, 0)), False)
sketch3.addGeometry(Part.ArcOfCircle(Part.Circle(App.Vector(-19.1, -7.9, 0), App.Vector(0, 0, 1), 0.6), math.radians(-90), math.radians(90)), False)
sketch3.addConstraint(Sketcher.Constraint("Coincident", 0, 1, 1, 2))
sketch3.addConstraint(Sketcher.Constraint("Coincident", 1, 1, 0, 2))
sketch3.addConstraint(Sketcher.Constraint("Coincident", 2, 1, 3, 2))
sketch3.addConstraint(Sketcher.Constraint("Coincident", 3, 1, 2, 2))
sketch3.addConstraint(Sketcher.Constraint("Coincident", 4, 1, 5, 2))
sketch3.addConstraint(Sketcher.Constraint("Coincident", 5, 1, 4, 2))
sketch3.addConstraint(Sketcher.Constraint("Coincident", 6, 1, 7, 2))
sketch3.addConstraint(Sketcher.Constraint("Coincident", 7, 1, 6, 2))
sketch3.addConstraint(Sketcher.Constraint("Coincident", 8, 1, 9, 2))
sketch3.addConstraint(Sketcher.Constraint("Coincident", 9, 1, 8, 2))
sketch3.addConstraint(Sketcher.Constraint("Coincident", 10, 1, 11, 2))
sketch3.addConstraint(Sketcher.Constraint("Coincident", 11, 1, 10, 2))
sketch3.addConstraint(Sketcher.Constraint("Coincident", 12, 1, 13, 2))
sketch3.addConstraint(Sketcher.Constraint("Coincident", 13, 1, 12, 2))
sketch3.addConstraint(Sketcher.Constraint("Coincident", 14, 1, 15, 2))
sketch3.addConstraint(Sketcher.Constraint("Coincident", 15, 1, 14, 2))
sketch3.addConstraint(Sketcher.Constraint("Coincident", 16, 1, 17, 2))
sketch3.addConstraint(Sketcher.Constraint("Coincident", 17, 1, 16, 2))
sketch3.addConstraint(Sketcher.Constraint("Coincident", 18, 1, 19, 2))
sketch3.addConstraint(Sketcher.Constraint("Coincident", 19, 1, 18, 2))
sketch3.addConstraint(Sketcher.Constraint("Coincident", 20, 1, 21, 2))
sketch3.addConstraint(Sketcher.Constraint("Coincident", 21, 1, 20, 2))
sketch3.addConstraint(Sketcher.Constraint("Coincident", 22, 1, 23, 2))
sketch3.addConstraint(Sketcher.Constraint("Coincident", 23, 1, 22, 2))
sketch3.addConstraint(Sketcher.Constraint("Coincident", 24, 1, 25, 2))
sketch3.addConstraint(Sketcher.Constraint("Coincident", 25, 1, 24, 2))
sketch3.addConstraint(Sketcher.Constraint("Coincident", 26, 1, 27, 2))
sketch3.addConstraint(Sketcher.Constraint("Coincident", 27, 1, 26, 2))
sketch3.addConstraint(Sketcher.Constraint("Coincident", 28, 1, 29, 2))
sketch3.addConstraint(Sketcher.Constraint("Coincident", 29, 1, 28, 2))
sketch3.addConstraint(Sketcher.Constraint("Coincident", 30, 1, 31, 2))
sketch3.addConstraint(Sketcher.Constraint("Coincident", 31, 1, 30, 2))
sketch3.addConstraint(Sketcher.Constraint("Horizontal", 0))
sketch3.addConstraint(Sketcher.Constraint("Horizontal", 2))
sketch3.addConstraint(Sketcher.Constraint("Vertical", 5))
sketch3.addConstraint(Sketcher.Constraint("Vertical", 7))
sketch3.addConstraint(Sketcher.Constraint("Horizontal", 9))
sketch3.addConstraint(Sketcher.Constraint("Horizontal", 11))
sketch3.addConstraint(Sketcher.Constraint("Vertical", 12))
sketch3.addConstraint(Sketcher.Constraint("Vertical", 14))
sketch3.addConstraint(Sketcher.Constraint("Vertical", 17))
sketch3.addConstraint(Sketcher.Constraint("Vertical", 19))
sketch3.addConstraint(Sketcher.Constraint("Horizontal", 20))
sketch3.addConstraint(Sketcher.Constraint("Horizontal", 22))
sketch3.addConstraint(Sketcher.Constraint("Horizontal", 25))
sketch3.addConstraint(Sketcher.Constraint("Horizontal", 27))
sketch3.addConstraint(Sketcher.Constraint("Vertical", 28))
sketch3.addConstraint(Sketcher.Constraint("Vertical", 30))
sketch3.addConstraint(Sketcher.Constraint("Equal", 1, 3))
sketch3.addConstraint(Sketcher.Constraint("Equal", 3, 4))
sketch3.addConstraint(Sketcher.Constraint("Equal", 4, 6))
sketch3.addConstraint(Sketcher.Constraint("Equal", 6, 8))
sketch3.addConstraint(Sketcher.Constraint("Equal", 8, 10))
sketch3.addConstraint(Sketcher.Constraint("Equal", 10, 13))
sketch3.addConstraint(Sketcher.Constraint("Equal", 13, 15))
sketch3.addConstraint(Sketcher.Constraint("Equal", 15, 16))
sketch3.addConstraint(Sketcher.Constraint("Equal", 16, 18))
sketch3.addConstraint(Sketcher.Constraint("Equal", 18, 21))
sketch3.addConstraint(Sketcher.Constraint("Equal", 21, 23))
sketch3.addConstraint(Sketcher.Constraint("Equal", 23, 24))
sketch3.addConstraint(Sketcher.Constraint("Equal", 24, 26))
sketch3.addConstraint(Sketcher.Constraint("Equal", 26, 29))
sketch3.addConstraint(Sketcher.Constraint("Equal", 29, 31))
sketch3.addConstraint(Sketcher.Constraint("Symmetric", 6, 3, 16, 3, -1, 1))
sketch3.addConstraint(Sketcher.Constraint("Symmetric", 4, 3, 18, 3, -1, 1))
sketch3.addConstraint(Sketcher.Constraint("Symmetric", 1, 3, 21, 3, -1, 1))
sketch3.addConstraint(Sketcher.Constraint("Symmetric", 3, 3, 23, 3, -1, 1))
sketch3.addConstraint(Sketcher.Constraint("Symmetric", 8, 3, 24, 3, -1, 1))
sketch3.addConstraint(Sketcher.Constraint("Symmetric", 10, 3, 26, 3, -1, 1))
sketch3.addConstraint(Sketcher.Constraint("Symmetric", 13, 3, 29, 3, -1, 1))
sketch3.addConstraint(Sketcher.Constraint("Symmetric", 15, 3, 31, 3, -1, 1))
sketch3.addConstraint(Sketcher.Constraint("Symmetric", 3, 3, 8, 3, -2))
sketch3.addConstraint(Sketcher.Constraint("Symmetric", 1, 3, 10, 3, -2))
sketch3.addConstraint(Sketcher.Constraint("Symmetric", 4, 3, 13, 3, -2))
sketch3.addConstraint(Sketcher.Constraint("Symmetric", 6, 3, 15, 3, -2))
sketch3.addConstraint(Sketcher.Constraint("Horizontal", 1, 3, 3, 3))
sketch3.addConstraint(Sketcher.Constraint("Horizontal", 10, 3, 0, 1))
sketch3.addConstraint(Sketcher.Constraint("Horizontal", 1, 1, 2, 1))
sketch3.addConstraint(Sketcher.Constraint("Horizontal", 3, 1, 8, 1))
sketch3.addConstraint(Sketcher.Constraint("Horizontal", 9, 1, 10, 1))
sketch3.addConstraint(Sketcher.Constraint("Horizontal", 26, 3, 20, 1))
sketch3.addConstraint(Sketcher.Constraint("Horizontal", 21, 1, 22, 1))
sketch3.addConstraint(Sketcher.Constraint("Horizontal", 23, 1, 24, 1))
sketch3.addConstraint(Sketcher.Constraint("Horizontal", 25, 1, 26, 1))
sketch3.addConstraint(Sketcher.Constraint("Vertical", 4, 3, 6, 3))
sketch3.addConstraint(Sketcher.Constraint("Vertical", 31, 3, 4, 1))
sketch3.addConstraint(Sketcher.Constraint("Vertical", 5, 1, 6, 1))
sketch3.addConstraint(Sketcher.Constraint("Vertical", 18, 3, 12, 1))
sketch3.addConstraint(Sketcher.Constraint("Vertical", 13, 1, 14, 1))
sketch3.addConstraint(Sketcher.Constraint("Vertical", 15, 1, 16, 1))
sketch3.addConstraint(Sketcher.Constraint("Vertical", 17, 1, 18, 1))
sketch3.addConstraint(Sketcher.Constraint("Vertical", 7, 1, 28, 1))
sketch3.addConstraint(Sketcher.Constraint("Vertical", 29, 1, 30, 1))
sketch3.addConstraint(Sketcher.Constraint("Radius", 1, Q("0.025 in")))
sketch3.addConstraint(Sketcher.Constraint("DistanceX", 1, 3, -1, 1, Q("0.6 in")))
sketch3.addConstraint(Sketcher.Constraint("DistanceY", -1, 1, 4, 3, Q("0.6 in")))
sketch3.addConstraint(Sketcher.Constraint("DistanceX", 4, 3, 13, 3, Q("1.5 in")))
sketch3.addConstraint(Sketcher.Constraint("DistanceY", 21, 3, 10, 3, Q("1.5 in")))
sketch3.addConstraint(Sketcher.Constraint("DistanceX", 3, 3, -1, 1, Q("0.31 in")))
sketch3.addConstraint(Sketcher.Constraint("DistanceY", -1, 1, 6, 3, Q("0.31 in")))
pocket2 = doc.addObject("PartDesign::Pocket", "Pocket001")
body.addObject(pocket2)
pocket2.Profile = sketch3
pocket2.Type = "ThroughAll"
doc.recompute()

fillet = doc.addObject("PartDesign::Fillet", "Fillet")
body.addObject(fillet)
fillet.Base = (pocket2, edges_at(pocket2, [
    (6.756, -4.601, 0),
    (6.756, 4.601, 0),
    (-17.272, 17.272, 0),
    (-17.272, -17.272, 0),
    (17.272, -17.272, 0),
    (17.272, 17.272, 0),
    (-4.601, -6.756, 0),
    (4.601, -6.756, 0),
    (-6.756, 4.601, 0),
    (-6.756, -4.601, 0),
    (4.601, 6.756, 0),
    (-4.601, 6.756, 0),
]))
fillet.Radius = Q("0.1 in")
doc.recompute()

fillet2 = doc.addObject("PartDesign::Fillet", "Fillet001")
body.addObject(fillet2)
fillet2.Base = (fillet, edges_at(fillet, [
    (14.986, 4.064, 0),
    (19.05, 4.064, 0),
    (19.05, -4.064, 0),
    (14.986, -4.064, 0),
    (4.064, -14.986, 0),
    (4.064, -19.05, 0),
    (-4.064, -19.05, 0),
    (-4.064, -14.986, 0),
    (-14.986, -4.064, 0),
    (-19.05, -4.064, 0),
    (-19.05, 4.064, 0),
    (-14.986, 4.064, 0),
    (-19.05, 19.05, 0),
    (19.05, 19.05, 0),
    (19.05, -19.05, 0),
    (-19.05, -19.05, 0),
    (-4.064, 14.986, 0),
    (-4.064, 19.05, 0),
    (4.064, 19.05, 0),
    (4.064, 14.986, 0),
]))
fillet2.Radius = Q("0.07 in")
doc.recompute()

fillet3 = doc.addObject("PartDesign::Fillet", "Fillet002")
body.addObject(fillet3)
fillet3.Base = (fillet2, edges_at(fillet2, [
    (12.442, 10.287, 0),
    (16.002, 10.287, 0),
    (16.002, 7.239, 0),
    (16.002, -7.239, 0),
    (16.002, -10.287, 0),
    (12.442, -10.287, 0),
    (-7.239, -16.002, 0),
    (-10.287, -16.002, 0),
    (-10.287, -12.442, 0),
    (10.287, -12.442, 0),
    (10.287, -16.002, 0),
    (7.239, -16.002, 0),
    (-16.002, 7.239, 0),
    (-16.002, 10.287, 0),
    (-12.442, 10.287, 0),
    (-12.442, -10.287, 0),
    (-16.002, -10.287, 0),
    (-14.986, -7.239, 0),
    (-10.287, 12.442, 0),
    (-10.287, 16.002, 0),
    (-7.239, 16.002, 0),
    (7.239, 16.002, 0),
    (10.287, 16.002, 0),
    (10.287, 12.442, 0),
]))
fillet3.Radius = Q("0.015625 in")

doc.recompute()
